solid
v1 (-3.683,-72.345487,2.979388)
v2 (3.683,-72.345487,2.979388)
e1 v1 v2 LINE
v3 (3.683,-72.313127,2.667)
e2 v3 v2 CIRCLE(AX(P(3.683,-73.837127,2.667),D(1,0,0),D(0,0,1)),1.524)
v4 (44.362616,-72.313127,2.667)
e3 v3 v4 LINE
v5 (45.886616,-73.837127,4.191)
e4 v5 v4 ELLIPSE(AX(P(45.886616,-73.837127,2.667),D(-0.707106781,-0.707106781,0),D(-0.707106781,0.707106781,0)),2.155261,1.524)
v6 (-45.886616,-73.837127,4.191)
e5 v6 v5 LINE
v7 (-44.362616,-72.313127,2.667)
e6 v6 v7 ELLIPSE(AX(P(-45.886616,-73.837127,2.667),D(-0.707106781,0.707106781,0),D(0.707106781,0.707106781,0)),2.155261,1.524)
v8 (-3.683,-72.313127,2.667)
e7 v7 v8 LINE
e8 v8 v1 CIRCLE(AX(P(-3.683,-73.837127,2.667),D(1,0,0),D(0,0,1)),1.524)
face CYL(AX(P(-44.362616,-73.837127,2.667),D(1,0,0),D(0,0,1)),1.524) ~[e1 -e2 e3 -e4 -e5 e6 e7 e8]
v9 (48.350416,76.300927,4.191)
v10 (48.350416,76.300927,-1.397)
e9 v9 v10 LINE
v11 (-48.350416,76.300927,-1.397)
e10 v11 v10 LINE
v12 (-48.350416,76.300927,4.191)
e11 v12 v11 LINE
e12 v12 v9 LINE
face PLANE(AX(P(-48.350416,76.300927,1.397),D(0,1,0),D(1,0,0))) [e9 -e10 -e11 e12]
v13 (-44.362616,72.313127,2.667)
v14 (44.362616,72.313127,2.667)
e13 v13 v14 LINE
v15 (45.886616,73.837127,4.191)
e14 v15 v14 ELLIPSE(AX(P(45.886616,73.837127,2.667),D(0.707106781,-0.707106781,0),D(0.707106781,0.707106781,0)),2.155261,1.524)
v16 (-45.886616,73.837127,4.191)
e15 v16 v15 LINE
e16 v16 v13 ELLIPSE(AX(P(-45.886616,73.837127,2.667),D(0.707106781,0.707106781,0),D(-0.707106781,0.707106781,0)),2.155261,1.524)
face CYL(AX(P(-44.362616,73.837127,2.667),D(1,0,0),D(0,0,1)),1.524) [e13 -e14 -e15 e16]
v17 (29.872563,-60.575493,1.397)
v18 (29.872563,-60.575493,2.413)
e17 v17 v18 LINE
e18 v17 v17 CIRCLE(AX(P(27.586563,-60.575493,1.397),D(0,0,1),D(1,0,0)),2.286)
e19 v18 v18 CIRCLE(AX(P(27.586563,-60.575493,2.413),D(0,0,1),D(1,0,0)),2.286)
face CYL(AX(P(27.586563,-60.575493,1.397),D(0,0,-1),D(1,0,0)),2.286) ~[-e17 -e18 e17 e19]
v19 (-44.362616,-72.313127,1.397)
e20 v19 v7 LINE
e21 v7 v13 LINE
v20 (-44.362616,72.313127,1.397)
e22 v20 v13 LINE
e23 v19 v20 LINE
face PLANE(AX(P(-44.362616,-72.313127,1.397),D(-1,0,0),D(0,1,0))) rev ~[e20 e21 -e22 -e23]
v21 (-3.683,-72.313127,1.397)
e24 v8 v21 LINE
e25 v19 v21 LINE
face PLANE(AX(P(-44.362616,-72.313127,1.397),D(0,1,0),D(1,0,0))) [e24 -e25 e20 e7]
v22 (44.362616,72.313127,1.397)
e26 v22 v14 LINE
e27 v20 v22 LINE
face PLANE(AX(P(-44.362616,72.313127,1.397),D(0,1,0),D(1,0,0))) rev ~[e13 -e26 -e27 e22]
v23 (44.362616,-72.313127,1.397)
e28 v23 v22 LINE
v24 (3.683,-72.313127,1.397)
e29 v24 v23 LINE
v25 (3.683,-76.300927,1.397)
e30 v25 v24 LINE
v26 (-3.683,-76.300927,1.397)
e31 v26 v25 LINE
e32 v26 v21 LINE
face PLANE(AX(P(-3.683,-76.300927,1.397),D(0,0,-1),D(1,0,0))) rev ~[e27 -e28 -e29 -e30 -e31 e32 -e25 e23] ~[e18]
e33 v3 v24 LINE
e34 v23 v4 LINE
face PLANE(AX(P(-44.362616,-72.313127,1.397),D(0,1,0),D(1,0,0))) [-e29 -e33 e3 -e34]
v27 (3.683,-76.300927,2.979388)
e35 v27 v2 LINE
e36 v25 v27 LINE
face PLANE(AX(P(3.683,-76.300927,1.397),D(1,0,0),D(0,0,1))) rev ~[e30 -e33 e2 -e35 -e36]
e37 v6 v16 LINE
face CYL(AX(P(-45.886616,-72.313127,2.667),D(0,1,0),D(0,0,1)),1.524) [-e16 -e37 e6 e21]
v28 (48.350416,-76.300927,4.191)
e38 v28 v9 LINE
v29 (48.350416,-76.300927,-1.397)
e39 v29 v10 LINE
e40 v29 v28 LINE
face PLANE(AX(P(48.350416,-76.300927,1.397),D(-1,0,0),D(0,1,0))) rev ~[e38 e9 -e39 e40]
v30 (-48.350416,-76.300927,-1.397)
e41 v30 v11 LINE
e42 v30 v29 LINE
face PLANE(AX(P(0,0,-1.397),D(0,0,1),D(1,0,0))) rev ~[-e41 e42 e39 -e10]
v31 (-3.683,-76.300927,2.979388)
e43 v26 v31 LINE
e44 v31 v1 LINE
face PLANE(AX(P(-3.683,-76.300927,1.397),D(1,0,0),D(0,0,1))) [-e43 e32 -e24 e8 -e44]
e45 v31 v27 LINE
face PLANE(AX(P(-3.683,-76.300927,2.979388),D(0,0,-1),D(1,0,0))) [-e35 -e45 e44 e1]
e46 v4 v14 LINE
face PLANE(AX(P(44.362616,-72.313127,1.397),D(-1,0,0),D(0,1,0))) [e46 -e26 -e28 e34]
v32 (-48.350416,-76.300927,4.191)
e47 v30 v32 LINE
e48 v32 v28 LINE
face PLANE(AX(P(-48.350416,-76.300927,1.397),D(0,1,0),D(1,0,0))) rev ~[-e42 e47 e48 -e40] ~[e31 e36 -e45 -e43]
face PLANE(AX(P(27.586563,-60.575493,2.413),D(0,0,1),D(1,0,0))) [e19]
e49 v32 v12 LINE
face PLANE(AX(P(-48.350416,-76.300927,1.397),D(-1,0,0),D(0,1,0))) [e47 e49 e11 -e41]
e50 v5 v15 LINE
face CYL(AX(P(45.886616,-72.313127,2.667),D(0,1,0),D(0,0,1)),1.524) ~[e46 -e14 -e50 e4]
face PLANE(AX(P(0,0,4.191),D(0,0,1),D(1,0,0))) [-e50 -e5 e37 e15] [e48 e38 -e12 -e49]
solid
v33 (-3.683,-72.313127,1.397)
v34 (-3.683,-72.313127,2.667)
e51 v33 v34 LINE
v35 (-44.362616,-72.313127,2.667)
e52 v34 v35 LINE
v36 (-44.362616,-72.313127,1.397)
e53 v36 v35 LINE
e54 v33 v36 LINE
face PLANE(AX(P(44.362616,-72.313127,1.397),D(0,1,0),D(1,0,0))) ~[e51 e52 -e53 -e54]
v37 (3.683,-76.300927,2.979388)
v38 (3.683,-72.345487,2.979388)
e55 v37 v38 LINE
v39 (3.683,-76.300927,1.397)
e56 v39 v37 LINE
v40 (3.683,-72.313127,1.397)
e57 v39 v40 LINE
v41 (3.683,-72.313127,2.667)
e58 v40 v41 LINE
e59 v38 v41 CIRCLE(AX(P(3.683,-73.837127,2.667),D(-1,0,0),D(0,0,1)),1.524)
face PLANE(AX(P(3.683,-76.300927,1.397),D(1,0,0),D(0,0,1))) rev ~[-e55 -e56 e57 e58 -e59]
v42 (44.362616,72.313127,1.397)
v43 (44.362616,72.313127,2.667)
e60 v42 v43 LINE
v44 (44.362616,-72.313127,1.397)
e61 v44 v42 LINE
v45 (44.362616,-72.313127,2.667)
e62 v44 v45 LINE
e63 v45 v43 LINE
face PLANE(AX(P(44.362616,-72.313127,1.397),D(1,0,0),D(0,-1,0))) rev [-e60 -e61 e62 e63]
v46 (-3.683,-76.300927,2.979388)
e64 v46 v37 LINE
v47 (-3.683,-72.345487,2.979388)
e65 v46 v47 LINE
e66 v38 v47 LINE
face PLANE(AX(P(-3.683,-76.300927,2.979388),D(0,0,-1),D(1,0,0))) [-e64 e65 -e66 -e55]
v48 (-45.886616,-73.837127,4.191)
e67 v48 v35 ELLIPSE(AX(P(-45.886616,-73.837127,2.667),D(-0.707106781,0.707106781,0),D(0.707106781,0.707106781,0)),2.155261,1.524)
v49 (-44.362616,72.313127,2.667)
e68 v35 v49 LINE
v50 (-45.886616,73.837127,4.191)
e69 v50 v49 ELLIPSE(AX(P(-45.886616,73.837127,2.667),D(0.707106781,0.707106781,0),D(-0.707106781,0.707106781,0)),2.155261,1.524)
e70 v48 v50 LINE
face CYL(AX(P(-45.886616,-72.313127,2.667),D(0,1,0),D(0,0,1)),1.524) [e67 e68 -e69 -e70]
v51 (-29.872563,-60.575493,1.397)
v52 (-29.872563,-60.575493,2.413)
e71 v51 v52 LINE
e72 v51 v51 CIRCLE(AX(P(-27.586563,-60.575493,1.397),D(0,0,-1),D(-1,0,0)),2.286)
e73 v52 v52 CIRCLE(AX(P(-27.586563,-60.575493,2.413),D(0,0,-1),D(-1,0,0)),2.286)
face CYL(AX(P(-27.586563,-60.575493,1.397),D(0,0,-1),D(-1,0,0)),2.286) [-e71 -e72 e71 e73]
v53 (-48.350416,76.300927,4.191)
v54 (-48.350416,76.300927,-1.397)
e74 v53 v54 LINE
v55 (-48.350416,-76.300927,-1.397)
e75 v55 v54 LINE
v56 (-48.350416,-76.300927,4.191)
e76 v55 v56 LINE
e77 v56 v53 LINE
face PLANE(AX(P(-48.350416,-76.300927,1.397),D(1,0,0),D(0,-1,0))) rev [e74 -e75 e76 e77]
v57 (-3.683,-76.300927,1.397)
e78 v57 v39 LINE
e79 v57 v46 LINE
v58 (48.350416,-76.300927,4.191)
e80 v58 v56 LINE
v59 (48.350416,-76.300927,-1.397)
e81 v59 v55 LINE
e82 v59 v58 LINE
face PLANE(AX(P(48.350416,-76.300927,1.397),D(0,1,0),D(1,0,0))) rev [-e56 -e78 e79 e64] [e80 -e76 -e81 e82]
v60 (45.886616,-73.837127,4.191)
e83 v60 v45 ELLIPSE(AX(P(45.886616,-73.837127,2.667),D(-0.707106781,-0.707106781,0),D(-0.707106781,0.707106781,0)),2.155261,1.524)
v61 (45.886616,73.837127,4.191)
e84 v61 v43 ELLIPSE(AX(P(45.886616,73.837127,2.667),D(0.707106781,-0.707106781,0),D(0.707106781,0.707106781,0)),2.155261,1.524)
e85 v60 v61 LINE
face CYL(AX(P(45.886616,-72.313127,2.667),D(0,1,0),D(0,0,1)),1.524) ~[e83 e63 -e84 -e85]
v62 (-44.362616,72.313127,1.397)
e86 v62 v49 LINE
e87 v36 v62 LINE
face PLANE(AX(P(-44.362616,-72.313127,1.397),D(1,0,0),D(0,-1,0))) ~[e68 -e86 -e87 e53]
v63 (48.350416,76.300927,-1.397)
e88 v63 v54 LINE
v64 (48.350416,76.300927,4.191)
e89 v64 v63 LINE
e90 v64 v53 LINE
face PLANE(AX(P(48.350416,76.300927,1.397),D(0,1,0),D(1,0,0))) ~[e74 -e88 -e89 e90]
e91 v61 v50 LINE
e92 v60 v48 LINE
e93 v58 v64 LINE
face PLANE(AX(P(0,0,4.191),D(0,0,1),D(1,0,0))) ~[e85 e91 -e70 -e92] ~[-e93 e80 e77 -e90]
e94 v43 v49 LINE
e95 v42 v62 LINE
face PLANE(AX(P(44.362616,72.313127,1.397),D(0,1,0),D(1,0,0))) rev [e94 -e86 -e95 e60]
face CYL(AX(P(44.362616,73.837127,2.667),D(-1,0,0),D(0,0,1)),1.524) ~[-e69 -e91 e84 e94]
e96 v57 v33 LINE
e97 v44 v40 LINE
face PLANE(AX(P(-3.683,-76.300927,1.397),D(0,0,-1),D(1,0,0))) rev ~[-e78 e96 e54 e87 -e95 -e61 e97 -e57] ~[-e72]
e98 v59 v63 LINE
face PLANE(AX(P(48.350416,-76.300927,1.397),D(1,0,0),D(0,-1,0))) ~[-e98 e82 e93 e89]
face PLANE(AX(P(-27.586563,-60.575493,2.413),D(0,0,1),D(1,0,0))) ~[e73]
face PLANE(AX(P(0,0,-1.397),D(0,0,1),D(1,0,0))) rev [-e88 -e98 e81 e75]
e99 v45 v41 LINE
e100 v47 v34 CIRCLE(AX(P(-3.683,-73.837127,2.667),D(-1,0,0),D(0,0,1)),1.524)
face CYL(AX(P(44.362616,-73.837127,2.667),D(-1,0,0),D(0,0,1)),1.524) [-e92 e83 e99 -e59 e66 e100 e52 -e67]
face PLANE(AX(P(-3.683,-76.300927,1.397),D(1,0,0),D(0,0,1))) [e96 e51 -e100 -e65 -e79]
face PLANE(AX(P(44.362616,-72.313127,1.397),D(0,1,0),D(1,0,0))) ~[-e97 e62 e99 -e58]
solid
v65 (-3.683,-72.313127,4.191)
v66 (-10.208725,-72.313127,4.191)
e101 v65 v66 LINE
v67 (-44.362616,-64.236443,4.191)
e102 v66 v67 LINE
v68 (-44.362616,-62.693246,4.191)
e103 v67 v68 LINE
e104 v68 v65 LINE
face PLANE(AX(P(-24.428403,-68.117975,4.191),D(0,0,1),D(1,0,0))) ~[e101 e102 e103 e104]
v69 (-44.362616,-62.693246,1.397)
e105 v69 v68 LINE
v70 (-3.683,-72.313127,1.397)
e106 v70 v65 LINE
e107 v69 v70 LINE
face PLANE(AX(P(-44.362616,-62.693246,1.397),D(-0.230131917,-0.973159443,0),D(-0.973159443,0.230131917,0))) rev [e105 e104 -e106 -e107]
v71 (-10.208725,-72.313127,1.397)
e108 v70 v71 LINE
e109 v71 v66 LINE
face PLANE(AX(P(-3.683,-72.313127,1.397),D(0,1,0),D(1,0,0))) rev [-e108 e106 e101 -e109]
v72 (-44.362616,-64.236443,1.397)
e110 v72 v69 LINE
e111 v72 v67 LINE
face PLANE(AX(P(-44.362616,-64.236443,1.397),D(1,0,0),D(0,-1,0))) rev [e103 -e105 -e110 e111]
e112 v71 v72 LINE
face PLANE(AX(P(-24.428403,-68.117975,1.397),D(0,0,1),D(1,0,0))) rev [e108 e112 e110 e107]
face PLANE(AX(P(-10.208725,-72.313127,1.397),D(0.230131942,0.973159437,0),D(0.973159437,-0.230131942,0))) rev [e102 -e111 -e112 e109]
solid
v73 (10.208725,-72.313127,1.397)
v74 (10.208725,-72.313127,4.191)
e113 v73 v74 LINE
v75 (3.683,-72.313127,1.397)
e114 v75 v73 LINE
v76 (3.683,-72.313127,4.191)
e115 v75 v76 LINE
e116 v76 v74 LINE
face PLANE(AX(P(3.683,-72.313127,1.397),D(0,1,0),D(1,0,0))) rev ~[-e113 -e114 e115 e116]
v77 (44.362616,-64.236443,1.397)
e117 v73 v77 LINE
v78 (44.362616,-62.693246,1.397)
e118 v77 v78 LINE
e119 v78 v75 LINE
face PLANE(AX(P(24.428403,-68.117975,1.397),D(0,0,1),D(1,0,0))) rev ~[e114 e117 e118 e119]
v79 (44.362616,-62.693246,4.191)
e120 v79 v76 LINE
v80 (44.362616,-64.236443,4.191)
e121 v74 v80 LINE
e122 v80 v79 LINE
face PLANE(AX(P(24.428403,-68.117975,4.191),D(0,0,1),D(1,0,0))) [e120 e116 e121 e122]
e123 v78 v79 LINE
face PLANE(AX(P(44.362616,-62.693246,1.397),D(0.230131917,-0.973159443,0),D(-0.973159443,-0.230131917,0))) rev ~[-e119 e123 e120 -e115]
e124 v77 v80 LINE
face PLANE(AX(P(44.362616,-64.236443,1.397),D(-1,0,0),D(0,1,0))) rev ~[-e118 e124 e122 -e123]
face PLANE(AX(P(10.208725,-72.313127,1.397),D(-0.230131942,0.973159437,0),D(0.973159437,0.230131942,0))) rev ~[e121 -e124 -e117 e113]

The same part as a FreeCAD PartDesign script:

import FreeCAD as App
import Part
import Sketcher
from FreeCAD import Vector
Q = App.Units.Quantity


def edges_at(feature, points):
    """Names of the edges that pass closest to the given points."""
    edges = feature.Shape.Edges
    near = lambda p: min(range(len(edges)), key=lambda i: edges[i].distToShape(Part.Vertex(*p))[0])
    return sorted({f"Edge{near(p) + 1}" for p in points})

doc = App.newDocument("Part")
body = doc.addObject("PartDesign::Body", "Body")

sketch1 = body.newObject("Sketcher::SketchObject", "Sketch")
sketch1.AttachmentSupport = (doc.getObject("XY_Plane"), [""])
sketch1.MapMode = "FlatFace"
sketch1.addGeometry(Part.LineSegment(Vector(-48, 76, 0), Vector(-48, -76, 0)), False)
sketch1.addGeometry(Part.LineSegment(Vector(-48, -76, 0), Vector(48, -76, 0)), False)
sketch1.addGeometry(Part.LineSegment(Vector(48, -76, 0), Vector(48, 76, 0)), False)
sketch1.addGeometry(Part.LineSegment(Vector(48, 76, 0), Vector(-48, 76, 0)), False)
sketch1.addConstraint(Sketcher.Constraint("Coincident", 0, 2, 1, 1))
sketch1.addConstraint(Sketcher.Constraint("Coincident", 1, 2, 2, 1))
sketch1.addConstraint(Sketcher.Constraint("Coincident", 2, 2, 3, 1))
sketch1.addConstraint(Sketcher.Constraint("Coincident", 3, 2, 0, 1))
sketch1.addConstraint(Sketcher.Constraint("Vertical", 0))
sketch1.addConstraint(Sketcher.Constraint("Horizontal", 1))
sketch1.addConstraint(Sketcher.Constraint("Vertical", 2))
sketch1.addConstraint(Sketcher.Constraint("Horizontal", 3))
sketch1.addConstraint(Sketcher.Constraint("Symmetric", 0, 2, 2, 2, -1, 1))
sketch1.addConstraint(Sketcher.Constraint("DistanceX", 1, 1, 1, 2, 96.700832))
sketch1.addConstraint(Sketcher.Constraint("DistanceY", 0, 2, 0, 1, 152.601854))
pad1 = body.newObject("PartDesign::Pad", "Pad")
pad1.Profile = sketch1
pad1.Length = Q("0.11 in")
pad1.Midplane = True

sketch2 = body.newObject("Sketcher::SketchObject", "Sketch001")
sketch2.AttachmentSupport = (doc.getObject("XY_Plane"), [""])
sketch2.MapMode = "FlatFace"
sketch2.AttachmentOffset = App.Placement(Vector(0, 0, 0.055 * 25.4), App.Rotation())
sketch2.addGeometry(Part.LineSegment(Vector(-48, 76, 0), Vector(-48, -76, 0)), False)
sketch2.addGeometry(Part.LineSegment(Vector(-48, -76, 0), Vector(48, -76, 0)), False)
sketch2.addGeometry(Part.LineSegment(Vector(48, -76, 0), Vector(48, 76, 0)), False)
sketch2.addGeometry(Part.LineSegment(Vector(48, 76, 0), Vector(-48, 76, 0)), False)
sketch2.addGeometry(Part.LineSegment(Vector(44, -72, 0), Vector(-44, -72, 0)), False)
sketch2.addGeometry(Part.LineSegment(Vector(-44, -72, 0), Vector(-44, 72, 0)), False)
sketch2.addGeometry(Part.LineSegment(Vector(-44, 72, 0), Vector(44, 72, 0)), False)
sketch2.addGeometry(Part.LineSegment(Vector(44, 72, 0), Vector(44, -72, 0)), False)
sketch2.addConstraint(Sketcher.Constraint("Coincident", 0, 2, 1, 1))
sketch2.addConstraint(Sketcher.Constraint("Coincident", 1, 2, 2, 1))
sketch2.addConstraint(Sketcher.Constraint("Coincident", 2, 2, 3, 1))
sketch2.addConstraint(Sketcher.Constraint("Coincident", 3, 2, 0, 1))
sketch2.addConstraint(Sketcher.Constraint("Coincident", 4, 2, 5, 1))
sketch2.addConstraint(Sketcher.Constraint("Coincident", 5, 2, 6, 1))
sketch2.addConstraint(Sketcher.Constraint("Coincident", 6, 2, 7, 1))
sketch2.addConstraint(Sketcher.Constraint("Coincident", 7, 2, 4, 1))
sketch2.addConstraint(Sketcher.Constraint("Vertical", 0))
sketch2.addConstraint(Sketcher.Constraint("Horizontal", 1))
sketch2.addConstraint(Sketcher.Constraint("Vertical", 2))
sketch2.addConstraint(Sketcher.Constraint("Horizontal", 3))
sketch2.addConstraint(Sketcher.Constraint("Horizontal", 4))
sketch2.addConstraint(Sketcher.Constraint("Vertical", 5))
sketch2.addConstraint(Sketcher.Constraint("Horizontal", 6))
sketch2.addConstraint(Sketcher.Constraint("Vertical", 7))
sketch2.addConstraint(Sketcher.Constraint("Symmetric", 0, 2, 2, 2, -1, 1))
sketch2.addConstraint(Sketcher.Constraint("Symmetric", 4, 2, 6, 2, -1, 1))
sketch2.addConstraint(Sketcher.Constraint("DistanceX", 0, 2, 4, 2, Q("0.157 in")))
sketch2.addConstraint(Sketcher.Constraint("DistanceY", 0, 2, 4, 2, Q("0.157 in")))
sketch2.addConstraint(Sketcher.Constraint("DistanceX", 1, 1, 1, 2, 96.700832))
sketch2.addConstraint(Sketcher.Constraint("DistanceY", 0, 2, 0, 1, 152.601854))
pad2 = body.newObject("PartDesign::Pad", "Pad001")
pad2.Profile = sketch2
pad2.Length = Q("0.11 in")
doc.recompute()

fillet = body.newObject("PartDesign::Fillet", "Fillet")
fillet.Base = (pad2, edges_at(pad2, [
    (-44.363, 0, 4.191),
    (0, 72.313, 4.191),
    (44.363, 0, 4.191),
    (0, -72.313, 4.191),
]))
fillet.Radius = Q("0.06 in")

sketch3 = body.newObject("Sketcher::SketchObject", "Sketch002")
sketch3.AttachmentSupport = (doc.getObject("XY_Plane"), [""])
sketch3.MapMode = "FlatFace"
sketch3.AttachmentOffset = App.Placement(Vector(0, 0, 0.055 * 25.4), App.Rotation())
sketch3.addGeometry(Part.Circle(Vector(27.6, -60.6, 0), Vector(0, 0, 1), 2.3), False)
sketch3.addConstraint(Sketcher.Constraint("Diameter", 0, Q("0.18 in")))
sketch3.addConstraint(Sketcher.Constraint("DistanceX", -1, 1, 0, 3, 27.586563))
sketch3.addConstraint(Sketcher.Constraint("DistanceY", 0, 3, -1, 1, 60.575493))
pad3 = body.newObject("PartDesign::Pad", "Pad002")
pad3.Profile = sketch3
pad3.Length = Q("0.04 in")
body2 = doc.addObject("PartDesign::Body", "Body001")
doc.recompute()

mirroring = doc.addObject("Part::Mirroring", "Mirroring")
mirroring.Source = body
mirroring.Base = Vector(0, 0, 0)
mirroring.Normal = Vector(1, 0, 0)
body2.BaseFeature = mirroring
doc.recompute()
body3 = doc.addObject("PartDesign::Body", "Body002")

sketch4 = body3.newObject("Sketcher::SketchObject", "Sketch003")
sketch4.AttachmentSupport = (doc.getObject("XZ_Plane002"), [""])
sketch4.MapMode = "FlatFace"
sketch4.AttachmentOffset = App.Placement(Vector(0, 0, 76.300927), App.Rotation())
sketch4.addGeometry(Part.LineSegment(Vector(-3.7, 3, 0), Vector(-3.7, 1.4, 0)), False)
sketch4.addGeometry(Part.LineSegment(Vector(-3.7, 1.4, 0), Vector(3.7, 1.4, 0)), False)
sketch4.addGeometry(Part.LineSegment(Vector(3.7, 1.4, 0), Vector(3.7, 3, 0)), False)
sketch4.addGeometry(Part.LineSegment(Vector(3.7, 3, 0), Vector(-3.7, 3, 0)), False)
sketch4.addConstraint(Sketcher.Constraint("Coincident", 0, 2, 1, 1))
sketch4.addConstraint(Sketcher.Constraint("Coincident", 1, 2, 2, 1))
sketch4.addConstraint(Sketcher.Constraint("Coincident", 2, 2, 3, 1))
sketch4.addConstraint(Sketcher.Constraint("Coincident", 3, 2, 0, 1))
sketch4.addConstraint(Sketcher.Constraint("Vertical", 0))
sketch4.addConstraint(Sketcher.Constraint("Horizontal", 1))
sketch4.addConstraint(Sketcher.Constraint("Vertical", 2))
sketch4.addConstraint(Sketcher.Constraint("Horizontal", 3))
sketch4.addConstraint(Sketcher.Constraint("DistanceX", 1, 1, 1, 2, Q("0.29 in")))
sketch4.addConstraint(Sketcher.Constraint("DistanceX", 0, 2, -1, 1, Q("0.145 in")))
sketch4.addConstraint(Sketcher.Constraint("DistanceY", -1, 1, 0, 2, Q("0.055 in")))
sketch4.addConstraint(Sketcher.Constraint("DistanceY", 0, 2, 0, 1, 1.582388))
pad4 = body3.newObject("PartDesign::Pad", "Pad003")
pad4.Profile = sketch4
pad4.Length = Q("1 in")
pad4.Reversed = True
doc.recompute()

body4 = doc.addObject("PartDesign::Body", "Body003")
body4.BaseFeature = body3
boolean = body.newObject("PartDesign::Boolean", "Boolean")
boolean.Type = "Cut"
boolean.addObjects([body4])
doc.recompute()

boolean2 = body2.newObject("PartDesign::Boolean", "Boolean001")
boolean2.Type = "Cut"
boolean2.addObjects([body3])
body5 = doc.addObject("PartDesign::Body", "Body004")

sketch5 = body5.newObject("Sketcher::SketchObject", "Sketch004")
sketch5.AttachmentSupport = (doc.getObject("XY_Plane004"), [""])
sketch5.MapMode = "FlatFace"
sketch5.AttachmentOffset = App.Placement(Vector(0, 0, 0.055 * 25.4), App.Rotation())
sketch5.addGeometry(Part.LineSegment(Vector(44.4, -62.7, 0), Vector(3.7, -72.3, 0)), False)
sketch5.addGeometry(Part.LineSegment(Vector(3.7, -72.3, 0), Vector(10.2, -72.3, 0)), False)
sketch5.addGeometry(Part.LineSegment(Vector(10.2, -72.3, 0), Vector(44.4, -64.2, 0)), False)
sketch5.addGeometry(Part.LineSegment(Vector(44.4, -64.2, 0), Vector(44.4, -62.7, 0)), False)
sketch5.addConstraint(Sketcher.Constraint("Coincident", 0, 2, 1, 1))
sketch5.addConstraint(Sketcher.Constraint("Coincident", 1, 2, 2, 1))
sketch5.addConstraint(Sketcher.Constraint("Coincident", 2, 2, 3, 1))
sketch5.addConstraint(Sketcher.Constraint("Coincident", 3, 2, 0, 1))
sketch5.addConstraint(Sketcher.Constraint("Horizontal", 1))
sketch5.addConstraint(Sketcher.Constraint("Vertical", 3))
sketch5.addConstraint(Sketcher.Constraint("Parallel", 0, 2))
sketch5.addConstraint(Sketcher.Constraint("DistanceX", -1, 1, 0, 2, Q("0.145 in")))
sketch5.addConstraint(Sketcher.Constraint("DistanceX", 1, 1, 1, 2, 6.525725))
sketch5.addConstraint(Sketcher.Constraint("DistanceY", 3, 1, 3, 2, 1.543197))
sketch5.addConstraint(Sketcher.Constraint("DistanceX", 1, 2, 2, 2, 34.153891))
sketch5.addConstraint(Sketcher.Constraint("DistanceY", 0, 2, -1, 1, 72.313127))
pad5 = body5.newObject("PartDesign::Pad", "Pad004")
pad5.Profile = sketch5
pad5.Length = Q("0.11 in")
body6 = doc.addObject("PartDesign::Body", "Body005")
doc.recompute()

mirroring2 = doc.addObject("Part::Mirroring", "Mirroring001")
mirroring2.Source = body5
mirroring2.Base = Vector(0, 0, 0)
mirroring2.Normal = Vector(1, 0, 0)
body6.BaseFeature = mirroring2
doc.recompute()
mirroring.Visibility = False
mirroring2.Visibility = False

doc.recompute()
